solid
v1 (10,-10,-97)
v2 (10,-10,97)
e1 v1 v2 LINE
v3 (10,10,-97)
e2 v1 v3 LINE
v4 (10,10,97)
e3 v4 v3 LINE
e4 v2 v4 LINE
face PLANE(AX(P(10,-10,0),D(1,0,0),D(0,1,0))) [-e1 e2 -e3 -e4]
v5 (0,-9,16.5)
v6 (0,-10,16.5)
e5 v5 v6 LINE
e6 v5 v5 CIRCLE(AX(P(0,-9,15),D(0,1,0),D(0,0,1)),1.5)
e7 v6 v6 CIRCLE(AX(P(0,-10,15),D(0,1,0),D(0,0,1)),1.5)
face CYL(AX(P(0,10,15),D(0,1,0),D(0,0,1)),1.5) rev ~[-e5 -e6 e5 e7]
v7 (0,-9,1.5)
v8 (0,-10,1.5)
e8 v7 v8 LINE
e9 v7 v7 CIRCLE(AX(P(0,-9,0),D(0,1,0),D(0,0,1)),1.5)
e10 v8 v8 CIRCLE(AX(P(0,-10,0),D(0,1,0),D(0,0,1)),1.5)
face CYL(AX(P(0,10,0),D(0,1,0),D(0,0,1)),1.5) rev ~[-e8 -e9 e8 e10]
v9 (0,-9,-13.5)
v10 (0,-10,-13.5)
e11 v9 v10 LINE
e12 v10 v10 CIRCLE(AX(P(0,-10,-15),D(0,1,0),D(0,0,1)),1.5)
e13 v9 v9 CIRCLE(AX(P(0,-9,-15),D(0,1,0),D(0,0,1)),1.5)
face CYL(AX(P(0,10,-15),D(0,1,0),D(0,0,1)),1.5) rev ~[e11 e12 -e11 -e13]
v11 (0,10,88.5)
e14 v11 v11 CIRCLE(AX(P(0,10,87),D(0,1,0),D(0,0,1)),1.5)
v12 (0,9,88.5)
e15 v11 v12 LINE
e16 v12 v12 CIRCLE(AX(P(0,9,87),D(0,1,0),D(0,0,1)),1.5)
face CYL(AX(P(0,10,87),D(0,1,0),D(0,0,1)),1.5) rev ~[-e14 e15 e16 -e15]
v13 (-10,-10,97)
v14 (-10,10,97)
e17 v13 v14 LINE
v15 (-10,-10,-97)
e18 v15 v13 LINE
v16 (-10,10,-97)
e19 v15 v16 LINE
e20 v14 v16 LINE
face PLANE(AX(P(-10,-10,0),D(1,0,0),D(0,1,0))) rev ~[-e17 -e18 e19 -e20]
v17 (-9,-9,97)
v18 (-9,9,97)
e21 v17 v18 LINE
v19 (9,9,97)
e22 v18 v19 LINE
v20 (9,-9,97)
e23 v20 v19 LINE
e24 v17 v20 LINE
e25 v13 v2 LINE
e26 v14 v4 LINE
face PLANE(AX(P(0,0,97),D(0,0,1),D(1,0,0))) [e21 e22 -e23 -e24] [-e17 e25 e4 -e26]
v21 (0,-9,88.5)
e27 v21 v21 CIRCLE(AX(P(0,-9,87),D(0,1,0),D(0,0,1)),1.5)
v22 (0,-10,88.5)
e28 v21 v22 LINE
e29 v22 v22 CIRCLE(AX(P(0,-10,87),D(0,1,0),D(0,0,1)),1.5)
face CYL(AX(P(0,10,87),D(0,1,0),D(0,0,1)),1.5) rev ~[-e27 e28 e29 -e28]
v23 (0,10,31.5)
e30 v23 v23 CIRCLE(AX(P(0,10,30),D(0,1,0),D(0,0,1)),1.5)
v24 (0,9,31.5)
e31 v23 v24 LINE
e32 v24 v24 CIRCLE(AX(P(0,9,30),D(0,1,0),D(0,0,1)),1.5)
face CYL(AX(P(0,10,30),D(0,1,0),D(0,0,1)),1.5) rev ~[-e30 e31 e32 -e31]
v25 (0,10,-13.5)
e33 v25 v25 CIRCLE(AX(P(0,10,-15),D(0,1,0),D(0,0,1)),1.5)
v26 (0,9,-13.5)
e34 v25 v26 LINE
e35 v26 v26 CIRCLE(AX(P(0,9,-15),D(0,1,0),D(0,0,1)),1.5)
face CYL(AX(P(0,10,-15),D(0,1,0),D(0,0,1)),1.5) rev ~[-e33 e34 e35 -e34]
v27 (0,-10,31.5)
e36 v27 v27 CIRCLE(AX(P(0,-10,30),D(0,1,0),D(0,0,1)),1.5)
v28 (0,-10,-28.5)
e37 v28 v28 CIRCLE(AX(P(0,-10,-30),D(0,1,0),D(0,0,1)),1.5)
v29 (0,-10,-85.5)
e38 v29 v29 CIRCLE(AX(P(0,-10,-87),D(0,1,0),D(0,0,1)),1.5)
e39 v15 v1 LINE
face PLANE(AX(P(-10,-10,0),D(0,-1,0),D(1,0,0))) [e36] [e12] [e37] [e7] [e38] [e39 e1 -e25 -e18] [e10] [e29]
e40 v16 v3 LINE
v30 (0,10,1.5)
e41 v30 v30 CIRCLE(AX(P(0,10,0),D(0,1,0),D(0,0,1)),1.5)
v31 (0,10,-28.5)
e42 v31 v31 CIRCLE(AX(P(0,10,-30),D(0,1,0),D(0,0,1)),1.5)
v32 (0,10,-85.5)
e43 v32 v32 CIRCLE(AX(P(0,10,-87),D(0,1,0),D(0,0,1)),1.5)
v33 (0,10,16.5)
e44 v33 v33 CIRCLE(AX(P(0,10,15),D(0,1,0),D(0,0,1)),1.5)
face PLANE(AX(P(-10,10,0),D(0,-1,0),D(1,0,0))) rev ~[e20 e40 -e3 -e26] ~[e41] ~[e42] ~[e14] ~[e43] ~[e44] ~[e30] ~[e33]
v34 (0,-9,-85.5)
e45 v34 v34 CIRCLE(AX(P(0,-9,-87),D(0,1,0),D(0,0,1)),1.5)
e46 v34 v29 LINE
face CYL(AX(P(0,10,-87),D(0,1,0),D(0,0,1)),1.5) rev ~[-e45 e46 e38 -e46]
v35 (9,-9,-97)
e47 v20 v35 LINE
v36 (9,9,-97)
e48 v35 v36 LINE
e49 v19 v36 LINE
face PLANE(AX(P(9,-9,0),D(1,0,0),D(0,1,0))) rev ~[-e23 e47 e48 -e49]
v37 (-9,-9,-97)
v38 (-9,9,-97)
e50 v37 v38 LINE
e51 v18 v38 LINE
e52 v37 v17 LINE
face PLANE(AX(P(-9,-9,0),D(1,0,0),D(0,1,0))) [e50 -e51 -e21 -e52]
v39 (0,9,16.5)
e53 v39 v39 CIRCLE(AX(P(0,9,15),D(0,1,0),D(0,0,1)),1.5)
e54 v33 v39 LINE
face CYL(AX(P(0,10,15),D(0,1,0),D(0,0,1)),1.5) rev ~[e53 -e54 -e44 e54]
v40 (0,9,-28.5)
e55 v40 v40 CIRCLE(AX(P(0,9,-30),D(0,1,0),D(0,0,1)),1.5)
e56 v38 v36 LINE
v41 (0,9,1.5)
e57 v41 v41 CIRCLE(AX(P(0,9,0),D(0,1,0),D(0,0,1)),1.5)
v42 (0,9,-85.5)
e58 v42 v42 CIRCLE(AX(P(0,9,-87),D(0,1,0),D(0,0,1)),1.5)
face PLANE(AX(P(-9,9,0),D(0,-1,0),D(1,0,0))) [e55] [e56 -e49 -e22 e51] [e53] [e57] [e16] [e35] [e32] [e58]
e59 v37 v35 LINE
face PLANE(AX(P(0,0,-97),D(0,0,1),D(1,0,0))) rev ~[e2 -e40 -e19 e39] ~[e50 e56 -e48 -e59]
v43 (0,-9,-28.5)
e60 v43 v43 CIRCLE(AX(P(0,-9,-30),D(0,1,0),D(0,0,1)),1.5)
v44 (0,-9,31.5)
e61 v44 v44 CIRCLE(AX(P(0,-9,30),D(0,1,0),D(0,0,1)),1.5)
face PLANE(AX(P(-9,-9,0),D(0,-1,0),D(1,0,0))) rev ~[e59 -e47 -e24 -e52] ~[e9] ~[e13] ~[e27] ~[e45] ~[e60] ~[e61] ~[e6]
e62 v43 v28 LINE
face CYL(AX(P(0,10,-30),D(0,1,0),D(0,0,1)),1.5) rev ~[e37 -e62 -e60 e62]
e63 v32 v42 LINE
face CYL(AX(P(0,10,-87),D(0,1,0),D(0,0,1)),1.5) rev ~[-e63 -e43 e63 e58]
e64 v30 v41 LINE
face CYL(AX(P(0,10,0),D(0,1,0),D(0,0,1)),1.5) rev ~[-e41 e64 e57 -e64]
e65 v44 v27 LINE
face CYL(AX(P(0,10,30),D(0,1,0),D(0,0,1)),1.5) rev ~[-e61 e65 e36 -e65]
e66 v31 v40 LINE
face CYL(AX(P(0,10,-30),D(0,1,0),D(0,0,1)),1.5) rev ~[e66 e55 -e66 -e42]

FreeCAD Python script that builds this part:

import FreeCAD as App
import Part
import Sketcher

doc = App.newDocument("Part")
params = doc.addObject("Spreadsheet::Sheet", "Params")
for row, (alias, value) in enumerate([
    ("sketch1_width", "20 mm"),
    ("sketch1_width2", "18 mm"),
    ("pad1_length", "194 mm"),
    ("sketch2_diameter", "3 mm"),
    ("pocket1_length", "166 mm"),
], start=1):
    params.set(f"A{row}", alias)
    params.set(f"B{row}", "=" + value)
    params.setAlias(f"B{row}", alias)

body = doc.addObject("PartDesign::Body", "Body")

# Sketch on XY plane
sketch1 = doc.addObject("Sketcher::SketchObject", "Sketch")
body.addObject(sketch1)
sketch1.AttachmentSupport = (doc.XY_Plane, [""])
sketch1.MapMode = "FlatFace"
sketch1.addGeometry(Part.LineSegment(App.Vector(-10, 10, 0), App.Vector(-10, -10, 0)), False)
sketch1.addGeometry(Part.LineSegment(App.Vector(-10, -10, 0), App.Vector(10, -10, 0)), False)
sketch1.addGeometry(Part.LineSegment(App.Vector(10, -10, 0), App.Vector(10, 10, 0)), False)
sketch1.addGeometry(Part.LineSegment(App.Vector(10, 10, 0), App.Vector(-10, 10, 0)), False)
sketch1.addGeometry(Part.LineSegment(App.Vector(9, -9, 0), App.Vector(-9, -9, 0)), False)
sketch1.addGeometry(Part.LineSegment(App.Vector(-9, -9, 0), App.Vector(-9, 9, 0)), False)
sketch1.addGeometry(Part.LineSegment(App.Vector(-9, 9, 0), App.Vector(9, 9, 0)), False)
sketch1.addGeometry(Part.LineSegment(App.Vector(9, 9, 0), App.Vector(9, -9, 0)), False)
sketch1.addConstraint(Sketcher.Constraint("Coincident", 0, 2, 1, 1))
sketch1.addConstraint(Sketcher.Constraint("Coincident", 1, 2, 2, 1))
sketch1.addConstraint(Sketcher.Constraint("Coincident", 2, 2, 3, 1))
sketch1.addConstraint(Sketcher.Constraint("Coincident", 3, 2, 0, 1))
sketch1.addConstraint(Sketcher.Constraint("Coincident", 4, 2, 5, 1))
sketch1.addConstraint(Sketcher.Constraint("Coincident", 5, 2, 6, 1))
sketch1.addConstraint(Sketcher.Constraint("Coincident", 6, 2, 7, 1))
sketch1.addConstraint(Sketcher.Constraint("Coincident", 7, 2, 4, 1))
sketch1.addConstraint(Sketcher.Constraint("Vertical", 0))
sketch1.addConstraint(Sketcher.Constraint("Horizontal", 1))
sketch1.addConstraint(Sketcher.Constraint("Vertical", 2))
sketch1.addConstraint(Sketcher.Constraint("Horizontal", 3))
sketch1.addConstraint(Sketcher.Constraint("Horizontal", 4))
sketch1.addConstraint(Sketcher.Constraint("Vertical", 5))
sketch1.addConstraint(Sketcher.Constraint("Horizontal", 6))
sketch1.addConstraint(Sketcher.Constraint("Vertical", 7))
sketch1.addConstraint(Sketcher.Constraint("Symmetric", 0, 2, 2, 2, -1, 1))
sketch1.addConstraint(Sketcher.Constraint("Symmetric", 4, 2, 6, 2, -1, 1))
sketch1.addConstraint(Sketcher.Constraint("Equal", 3, 0))
sketch1.addConstraint(Sketcher.Constraint("Equal", 6, 5))
sketch1.addConstraint(Sketcher.Constraint("DistanceX", 1, 1, 1, 2, 20.0))
sketch1.addConstraint(Sketcher.Constraint("DistanceX", 4, 2, 4, 1, 18.0))
sketch1.setExpression("Constraints[20]", "Params.sketch1_width")
sketch1.setExpression("Constraints[21]", "Params.sketch1_width2")
pad1 = doc.addObject("PartDesign::Pad", "Pad")
body.addObject(pad1)
pad1.Profile = sketch1
pad1.setExpression("Length", "Params.pad1_length")
pad1.Midplane = True

# Sketch on XZ plane
sketch2 = doc.addObject("Sketcher::SketchObject", "Sketch001")
body.addObject(sketch2)
sketch2.AttachmentSupport = (doc.XZ_Plane, [""])
sketch2.MapMode = "FlatFace"
sketch2.AttachmentOffset = App.Placement(App.Vector(0, 0, -10), App.Rotation())
sketch2.addGeometry(Part.Circle(App.Vector(0, -87, 0), App.Vector(0, 0, 1), 1.5), False)
sketch2.addGeometry(Part.Circle(App.Vector(0, 87, 0), App.Vector(0, 0, 1), 1.5), False)
sketch2.addGeometry(Part.Circle(App.Vector(0, 0, 0), App.Vector(0, 0, 1), 1.5), False)
sketch2.addGeometry(Part.Circle(App.Vector(0, -15, 0), App.Vector(0, 0, 1), 1.5), False)
sketch2.addGeometry(Part.Circle(App.Vector(0, -30, 0), App.Vector(0, 0, 1), 1.5), False)
sketch2.addGeometry(Part.Circle(App.Vector(0, 30, 0), App.Vector(0, 0, 1), 1.5), False)
sketch2.addGeometry(Part.Circle(App.Vector(0, 15, 0), App.Vector(0, 0, 1), 1.5), False)
sketch2.addConstraint(Sketcher.Constraint("Coincident", 2, 3, -1, 1))
sketch2.addConstraint(Sketcher.Constraint("Equal", 0, 1))
sketch2.addConstraint(Sketcher.Constraint("Equal", 1, 2))
sketch2.addConstraint(Sketcher.Constraint("Equal", 2, 3))
sketch2.addConstraint(Sketcher.Constraint("Equal", 3, 4))
sketch2.addConstraint(Sketcher.Constraint("Equal", 4, 5))
sketch2.addConstraint(Sketcher.Constraint("Equal", 5, 6))
sketch2.addConstraint(Sketcher.Constraint("Symmetric", 0, 3, 1, 3, -1, 1))
sketch2.addConstraint(Sketcher.Constraint("Symmetric", 4, 3, 5, 3, -1, 1))
sketch2.addConstraint(Sketcher.Constraint("Symmetric", 3, 3, 6, 3, -1, 1))
sketch2.addConstraint(Sketcher.Constraint("PointOnObject", 0, 3, -2))
sketch2.addConstraint(Sketcher.Constraint("PointOnObject", 3, 3, -2))
sketch2.addConstraint(Sketcher.Constraint("PointOnObject", 4, 3, -2))
sketch2.addConstraint(Sketcher.Constraint("Diameter", 0, 3.0))
sketch2.addConstraint(Sketcher.Constraint("DistanceY", 0, 3, -1, 1, 87.0))
sketch2.addConstraint(Sketcher.Constraint("DistanceY", 3, 3, -1, 1, 15.0))
sketch2.addConstraint(Sketcher.Constraint("DistanceY", 4, 3, -1, 1, 30.0))
sketch2.setExpression("Constraints[13]", "Params.sketch2_diameter")
pocket1 = doc.addObject("PartDesign::Pocket", "Pocket")
body.addObject(pocket1)
pocket1.Profile = sketch2
pocket1.setExpression("Length", "Params.pocket1_length")
pocket1.Reversed = True

doc.recompute()
